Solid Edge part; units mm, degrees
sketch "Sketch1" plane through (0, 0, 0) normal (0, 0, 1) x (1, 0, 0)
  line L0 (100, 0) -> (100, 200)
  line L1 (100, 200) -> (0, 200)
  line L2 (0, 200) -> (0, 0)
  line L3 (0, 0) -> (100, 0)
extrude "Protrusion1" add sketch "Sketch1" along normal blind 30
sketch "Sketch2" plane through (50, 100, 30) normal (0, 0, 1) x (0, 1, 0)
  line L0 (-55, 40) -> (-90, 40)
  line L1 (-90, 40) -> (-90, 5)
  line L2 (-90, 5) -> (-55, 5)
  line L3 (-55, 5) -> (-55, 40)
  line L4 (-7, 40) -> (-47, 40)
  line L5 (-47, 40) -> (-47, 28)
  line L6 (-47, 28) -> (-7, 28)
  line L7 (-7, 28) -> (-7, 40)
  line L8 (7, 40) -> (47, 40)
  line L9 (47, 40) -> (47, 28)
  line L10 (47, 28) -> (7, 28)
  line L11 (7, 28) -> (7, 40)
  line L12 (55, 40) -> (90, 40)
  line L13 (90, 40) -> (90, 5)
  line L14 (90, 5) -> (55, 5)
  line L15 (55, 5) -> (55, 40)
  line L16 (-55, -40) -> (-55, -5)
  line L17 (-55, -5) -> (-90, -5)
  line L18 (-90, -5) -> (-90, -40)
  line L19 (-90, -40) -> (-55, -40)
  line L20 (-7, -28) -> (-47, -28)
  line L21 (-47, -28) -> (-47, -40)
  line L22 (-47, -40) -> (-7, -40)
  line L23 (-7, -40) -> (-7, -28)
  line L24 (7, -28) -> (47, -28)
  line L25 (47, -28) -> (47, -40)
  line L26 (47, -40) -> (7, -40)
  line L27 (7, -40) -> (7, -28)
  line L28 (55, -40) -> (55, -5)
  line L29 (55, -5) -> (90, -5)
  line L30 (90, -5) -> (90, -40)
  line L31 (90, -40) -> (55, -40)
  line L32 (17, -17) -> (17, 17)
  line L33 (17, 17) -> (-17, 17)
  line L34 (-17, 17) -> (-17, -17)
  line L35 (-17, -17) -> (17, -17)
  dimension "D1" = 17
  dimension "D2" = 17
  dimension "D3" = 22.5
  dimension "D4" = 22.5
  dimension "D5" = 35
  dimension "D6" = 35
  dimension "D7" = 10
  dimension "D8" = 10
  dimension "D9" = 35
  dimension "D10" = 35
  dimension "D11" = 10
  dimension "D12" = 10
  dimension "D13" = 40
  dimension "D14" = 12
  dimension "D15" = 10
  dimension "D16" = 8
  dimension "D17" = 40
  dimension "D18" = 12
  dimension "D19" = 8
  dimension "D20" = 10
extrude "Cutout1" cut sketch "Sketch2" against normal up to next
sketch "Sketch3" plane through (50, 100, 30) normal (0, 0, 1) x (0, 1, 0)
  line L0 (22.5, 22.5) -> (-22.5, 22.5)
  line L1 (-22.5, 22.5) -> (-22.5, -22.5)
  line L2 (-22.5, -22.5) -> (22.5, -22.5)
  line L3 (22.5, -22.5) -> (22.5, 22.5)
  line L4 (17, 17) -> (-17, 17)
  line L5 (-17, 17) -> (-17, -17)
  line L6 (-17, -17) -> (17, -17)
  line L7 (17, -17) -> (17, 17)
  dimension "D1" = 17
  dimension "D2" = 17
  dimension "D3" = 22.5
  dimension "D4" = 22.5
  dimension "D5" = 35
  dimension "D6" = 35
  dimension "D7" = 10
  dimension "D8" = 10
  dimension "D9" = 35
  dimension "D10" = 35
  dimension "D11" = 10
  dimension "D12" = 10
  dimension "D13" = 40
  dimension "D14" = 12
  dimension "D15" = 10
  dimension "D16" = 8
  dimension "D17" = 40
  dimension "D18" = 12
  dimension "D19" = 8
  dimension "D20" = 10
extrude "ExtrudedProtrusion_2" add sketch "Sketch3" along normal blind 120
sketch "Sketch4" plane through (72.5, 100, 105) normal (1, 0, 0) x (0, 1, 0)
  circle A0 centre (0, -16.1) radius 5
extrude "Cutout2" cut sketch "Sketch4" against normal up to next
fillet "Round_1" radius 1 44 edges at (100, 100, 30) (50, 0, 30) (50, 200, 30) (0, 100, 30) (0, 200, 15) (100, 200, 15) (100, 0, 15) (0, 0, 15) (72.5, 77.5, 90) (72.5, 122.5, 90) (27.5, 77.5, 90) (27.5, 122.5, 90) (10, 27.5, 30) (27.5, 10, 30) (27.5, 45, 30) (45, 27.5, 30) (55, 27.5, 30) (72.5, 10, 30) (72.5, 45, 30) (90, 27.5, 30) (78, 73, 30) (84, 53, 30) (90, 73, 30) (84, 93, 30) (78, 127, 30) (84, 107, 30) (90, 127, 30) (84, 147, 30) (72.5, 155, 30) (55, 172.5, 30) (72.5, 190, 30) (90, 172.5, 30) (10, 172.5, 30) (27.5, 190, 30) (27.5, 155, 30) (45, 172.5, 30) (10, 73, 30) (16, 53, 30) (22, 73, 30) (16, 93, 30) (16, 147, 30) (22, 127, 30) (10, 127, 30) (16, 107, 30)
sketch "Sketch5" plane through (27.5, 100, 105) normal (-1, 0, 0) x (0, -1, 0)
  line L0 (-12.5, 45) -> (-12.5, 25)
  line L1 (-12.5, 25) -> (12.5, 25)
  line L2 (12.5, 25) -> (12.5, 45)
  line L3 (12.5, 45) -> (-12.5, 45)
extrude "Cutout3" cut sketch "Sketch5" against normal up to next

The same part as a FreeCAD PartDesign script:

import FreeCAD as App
import Part
import Sketcher
Q = App.Units.Quantity


def edges_at(feature, points):
    """Names of the edges that pass closest to the given points."""
    edges = feature.Shape.Edges
    near = lambda p: min(range(len(edges)), key=lambda i: edges[i].distToShape(Part.Vertex(*p))[0])
    return sorted({f"Edge{near(p) + 1}" for p in points})

doc = App.newDocument("Part")
body = doc.addObject("PartDesign::Body", "Body")

# Sketch on XY plane
sketch1 = doc.addObject("Sketcher::SketchObject", "Sketch")
body.addObject(sketch1)
sketch1.AttachmentSupport = (doc.XY_Plane, [""])
sketch1.MapMode = "FlatFace"
sketch1.addGeometry(Part.LineSegment(App.Vector(0, 0, 0), App.Vector(100, 0, 0)), False)
sketch1.addGeometry(Part.LineSegment(App.Vector(100, 0, 0), App.Vector(100, 200, 0)), False)
sketch1.addGeometry(Part.LineSegment(App.Vector(100, 200, 0), App.Vector(0, 200, 0)), False)
sketch1.addGeometry(Part.LineSegment(App.Vector(0, 200, 0), App.Vector(0, 0, 0)), False)
sketch1.addConstraint(Sketcher.Constraint("Coincident", 0, 2, 1, 1))
sketch1.addConstraint(Sketcher.Constraint("Coincident", 1, 2, 2, 1))
sketch1.addConstraint(Sketcher.Constraint("Coincident", 2, 2, 3, 1))
sketch1.addConstraint(Sketcher.Constraint("Coincident", 3, 2, 0, 1))
sketch1.addConstraint(Sketcher.Constraint("Horizontal", 0))
sketch1.addConstraint(Sketcher.Constraint("Vertical", 1))
sketch1.addConstraint(Sketcher.Constraint("Horizontal", 2))
sketch1.addConstraint(Sketcher.Constraint("Vertical", 3))
sketch1.addConstraint(Sketcher.Constraint("Coincident", 3, 2, -1, 1))
sketch1.addConstraint(Sketcher.Constraint("DistanceX", 0, 1, 0, 2, Q("100 mm")))
sketch1.addConstraint(Sketcher.Constraint("DistanceY", 1, 1, 1, 2, Q("200 mm")))
pad1 = doc.addObject("PartDesign::Pad", "Pad")
body.addObject(pad1)
pad1.Profile = sketch1
pad1.Length = 30

# Sketch on XY plane
sketch2 = doc.addObject("Sketcher::SketchObject", "Sketch001")
body.addObject(sketch2)
sketch2.AttachmentSupport = (doc.XY_Plane, [""])
sketch2.MapMode = "FlatFace"
sketch2.AttachmentOffset = App.Placement(App.Vector(0, 0, 30), App.Rotation())
sketch2.addGeometry(Part.LineSegment(App.Vector(45, 45, 0), App.Vector(10, 45, 0)), False)
sketch2.addGeometry(Part.LineSegment(App.Vector(10, 45, 0), App.Vector(10, 10, 0)), False)
sketch2.addGeometry(Part.LineSegment(App.Vector(10, 10, 0), App.Vector(45, 10, 0)), False)
sketch2.addGeometry(Part.LineSegment(App.Vector(45, 10, 0), App.Vector(45, 45, 0)), False)
sketch2.addGeometry(Part.LineSegment(App.Vector(22, 93, 0), App.Vector(10, 93, 0)), False)
sketch2.addGeometry(Part.LineSegment(App.Vector(10, 93, 0), App.Vector(10, 53, 0)), False)
sketch2.addGeometry(Part.LineSegment(App.Vector(10, 53, 0), App.Vector(22, 53, 0)), False)
sketch2.addGeometry(Part.LineSegment(App.Vector(22, 53, 0), App.Vector(22, 93, 0)), False)
sketch2.addGeometry(Part.LineSegment(App.Vector(10, 147, 0), App.Vector(10, 107, 0)), False)
sketch2.addGeometry(Part.LineSegment(App.Vector(10, 107, 0), App.Vector(22, 107, 0)), False)
sketch2.addGeometry(Part.LineSegment(App.Vector(22, 107, 0), App.Vector(22, 147, 0)), False)
sketch2.addGeometry(Part.LineSegment(App.Vector(22, 147, 0), App.Vector(10, 147, 0)), False)
sketch2.addGeometry(Part.LineSegment(App.Vector(10, 190, 0), App.Vector(10, 155, 0)), False)
sketch2.addGeometry(Part.LineSegment(App.Vector(10, 155, 0), App.Vector(45, 155, 0)), False)
sketch2.addGeometry(Part.LineSegment(App.Vector(45, 155, 0), App.Vector(45, 190, 0)), False)
sketch2.addGeometry(Part.LineSegment(App.Vector(45, 190, 0), App.Vector(10, 190, 0)), False)
sketch2.addGeometry(Part.LineSegment(App.Vector(90, 10, 0), App.Vector(90, 45, 0)), False)
sketch2.addGeometry(Part.LineSegment(App.Vector(90, 45, 0), App.Vector(55, 45, 0)), False)
sketch2.addGeometry(Part.LineSegment(App.Vector(55, 45, 0), App.Vector(55, 10, 0)), False)
sketch2.addGeometry(Part.LineSegment(App.Vector(55, 10, 0), App.Vector(90, 10, 0)), False)
sketch2.addGeometry(Part.LineSegment(App.Vector(90, 93, 0), App.Vector(78, 93, 0)), False)
sketch2.addGeometry(Part.LineSegment(App.Vector(78, 93, 0), App.Vector(78, 53, 0)), False)
sketch2.addGeometry(Part.LineSegment(App.Vector(78, 53, 0), App.Vector(90, 53, 0)), False)
sketch2.addGeometry(Part.LineSegment(App.Vector(90, 53, 0), App.Vector(90, 93, 0)), False)
sketch2.addGeometry(Part.LineSegment(App.Vector(78, 147, 0), App.Vector(78, 107, 0)), False)
sketch2.addGeometry(Part.LineSegment(App.Vector(78, 107, 0), App.Vector(90, 107, 0)), False)
sketch2.addGeometry(Part.LineSegment(App.Vector(90, 107, 0), App.Vector(90, 147, 0)), False)
sketch2.addGeometry(Part.LineSegment(App.Vector(90, 147, 0), App.Vector(78, 147, 0)), False)
sketch2.addGeometry(Part.LineSegment(App.Vector(55, 155, 0), App.Vector(90, 155, 0)), False)
sketch2.addGeometry(Part.LineSegment(App.Vector(90, 155, 0), App.Vector(90, 190, 0)), False)
sketch2.addGeometry(Part.LineSegment(App.Vector(90, 190, 0), App.Vector(55, 190, 0)), False)
sketch2.addGeometry(Part.LineSegment(App.Vector(55, 190, 0), App.Vector(55, 155, 0)), False)
sketch2.addGeometry(Part.LineSegment(App.Vector(67, 83, 0), App.Vector(67, 117, 0)), False)
sketch2.addGeometry(Part.LineSegment(App.Vector(67, 117, 0), App.Vector(33, 117, 0)), False)
sketch2.addGeometry(Part.LineSegment(App.Vector(33, 117, 0), App.Vector(33, 83, 0)), False)
sketch2.addGeometry(Part.LineSegment(App.Vector(33, 83, 0), App.Vector(67, 83, 0)), False)
sketch2.addConstraint(Sketcher.Constraint("Coincident", 0, 2, 1, 1))
sketch2.addConstraint(Sketcher.Constraint("Coincident", 1, 2, 2, 1))
sketch2.addConstraint(Sketcher.Constraint("Coincident", 2, 2, 3, 1))
sketch2.addConstraint(Sketcher.Constraint("Coincident", 3, 2, 0, 1))
sketch2.addConstraint(Sketcher.Constraint("Coincident", 4, 2, 5, 1))
sketch2.addConstraint(Sketcher.Constraint("Coincident", 5, 2, 6, 1))
sketch2.addConstraint(Sketcher.Constraint("Coincident", 6, 2, 7, 1))
sketch2.addConstraint(Sketcher.Constraint("Coincident", 7, 2, 4, 1))
sketch2.addConstraint(Sketcher.Constraint("Coincident", 8, 2, 9, 1))
sketch2.addConstraint(Sketcher.Constraint("Coincident", 9, 2, 10, 1))
sketch2.addConstraint(Sketcher.Constraint("Coincident", 10, 2, 11, 1))
sketch2.addConstraint(Sketcher.Constraint("Coincident", 11, 2, 8, 1))
sketch2.addConstraint(Sketcher.Constraint("Coincident", 12, 2, 13, 1))
sketch2.addConstraint(Sketcher.Constraint("Coincident", 13, 2, 14, 1))
sketch2.addConstraint(Sketcher.Constraint("Coincident", 14, 2, 15, 1))
sketch2.addConstraint(Sketcher.Constraint("Coincident", 15, 2, 12, 1))
sketch2.addConstraint(Sketcher.Constraint("Coincident", 16, 2, 17, 1))
sketch2.addConstraint(Sketcher.Constraint("Coincident", 17, 2, 18, 1))
sketch2.addConstraint(Sketcher.Constraint("Coincident", 18, 2, 19, 1))
sketch2.addConstraint(Sketcher.Constraint("Coincident", 19, 2, 16, 1))
sketch2.addConstraint(Sketcher.Constraint("Coincident", 20, 2, 21, 1))
sketch2.addConstraint(Sketcher.Constraint("Coincident", 21, 2, 22, 1))
sketch2.addConstraint(Sketcher.Constraint("Coincident", 22, 2, 23, 1))
sketch2.addConstraint(Sketcher.Constraint("Coincident", 23, 2, 20, 1))
sketch2.addConstraint(Sketcher.Constraint("Coincident", 24, 2, 25, 1))
sketch2.addConstraint(Sketcher.Constraint("Coincident", 25, 2, 26, 1))
sketch2.addConstraint(Sketcher.Constraint("Coincident", 26, 2, 27, 1))
sketch2.addConstraint(Sketcher.Constraint("Coincident", 27, 2, 24, 1))
sketch2.addConstraint(Sketcher.Constraint("Coincident", 28, 2, 29, 1))
sketch2.addConstraint(Sketcher.Constraint("Coincident", 29, 2, 30, 1))
sketch2.addConstraint(Sketcher.Constraint("Coincident", 30, 2, 31, 1))
sketch2.addConstraint(Sketcher.Constraint("Coincident", 31, 2, 28, 1))
sketch2.addConstraint(Sketcher.Constraint("Coincident", 32, 2, 33, 1))
sketch2.addConstraint(Sketcher.Constraint("Coincident", 33, 2, 34, 1))
sketch2.addConstraint(Sketcher.Constraint("Coincident", 34, 2, 35, 1))
sketch2.addConstraint(Sketcher.Constraint("Coincident", 35, 2, 32, 1))
sketch2.addConstraint(Sketcher.Constraint("Horizontal", 0))
sketch2.addConstraint(Sketcher.Constraint("Vertical", 1))
sketch2.addConstraint(Sketcher.Constraint("Horizontal", 2))
sketch2.addConstraint(Sketcher.Constraint("Vertical", 3))
sketch2.addConstraint(Sketcher.Constraint("Horizontal", 4))
sketch2.addConstraint(Sketcher.Constraint("Vertical", 5))
sketch2.addConstraint(Sketcher.Constraint("Horizontal", 6))
sketch2.addConstraint(Sketcher.Constraint("Vertical", 7))
sketch2.addConstraint(Sketcher.Constraint("Vertical", 8))
sketch2.addConstraint(Sketcher.Constraint("Horizontal", 9))
sketch2.addConstraint(Sketcher.Constraint("Vertical", 10))
sketch2.addConstraint(Sketcher.Constraint("Horizontal", 11))
sketch2.addConstraint(Sketcher.Constraint("Vertical", 12))
sketch2.addConstraint(Sketcher.Constraint("Horizontal", 13))
sketch2.addConstraint(Sketcher.Constraint("Vertical", 14))
sketch2.addConstraint(Sketcher.Constraint("Horizontal", 15))
sketch2.addConstraint(Sketcher.Constraint("Vertical", 16))
sketch2.addConstraint(Sketcher.Constraint("Horizontal", 17))
sketch2.addConstraint(Sketcher.Constraint("Vertical", 18))
sketch2.addConstraint(Sketcher.Constraint("Horizontal", 19))
sketch2.addConstraint(Sketcher.Constraint("Horizontal", 20))
sketch2.addConstraint(Sketcher.Constraint("Vertical", 21))
sketch2.addConstraint(Sketcher.Constraint("Horizontal", 22))
sketch2.addConstraint(Sketcher.Constraint("Vertical", 23))
sketch2.addConstraint(Sketcher.Constraint("Vertical", 24))
sketch2.addConstraint(Sketcher.Constraint("Horizontal", 25))
sketch2.addConstraint(Sketcher.Constraint("Vertical", 26))
sketch2.addConstraint(Sketcher.Constraint("Horizontal", 27))
sketch2.addConstraint(Sketcher.Constraint("Horizontal", 28))
sketch2.addConstraint(Sketcher.Constraint("Vertical", 29))
sketch2.addConstraint(Sketcher.Constraint("Horizontal", 30))
sketch2.addConstraint(Sketcher.Constraint("Vertical", 31))
sketch2.addConstraint(Sketcher.Constraint("Vertical", 32))
sketch2.addConstraint(Sketcher.Constraint("Horizontal", 33))
sketch2.addConstraint(Sketcher.Constraint("Vertical", 34))
sketch2.addConstraint(Sketcher.Constraint("Horizontal", 35))
sketch2.addConstraint(Sketcher.Constraint("Horizontal", 3, 2, 16, 2))
sketch2.addConstraint(Sketcher.Constraint("Horizontal", 2, 2, 18, 2))
sketch2.addConstraint(Sketcher.Constraint("Horizontal", 7, 2, 20, 2))
sketch2.addConstraint(Sketcher.Constraint("Horizontal", 6, 2, 21, 2))
sketch2.addConstraint(Sketcher.Constraint("Horizontal", 9, 2, 24, 2))
sketch2.addConstraint(Sketcher.Constraint("Horizontal", 11, 2, 26, 2))
sketch2.addConstraint(Sketcher.Constraint("Horizontal", 13, 2, 28, 2))
sketch2.addConstraint(Sketcher.Constraint("Horizontal", 15, 2, 29, 2))
sketch2.addConstraint(Sketcher.Constraint("Vertical", 1, 2, 4, 2))
sketch2.addConstraint(Sketcher.Constraint("Vertical", 5, 2, 8, 2))
sketch2.addConstraint(Sketcher.Constraint("Vertical", 7, 2, 9, 2))
sketch2.addConstraint(Sketcher.Constraint("Vertical", 11, 2, 12, 2))
sketch2.addConstraint(Sketcher.Constraint("Vertical", 3, 2, 13, 2))
sketch2.addConstraint(Sketcher.Constraint("Vertical", 19, 2, 22, 2))
sketch2.addConstraint(Sketcher.Constraint("Vertical", 21, 2, 24, 2))
sketch2.addConstraint(Sketcher.Constraint("Vertical", 23, 2, 25, 2))
sketch2.addConstraint(Sketcher.Constraint("Vertical", 26, 2, 28, 2))
sketch2.addConstraint(Sketcher.Constraint("Vertical", 18, 2, 30, 2))
sketch2.addConstraint(Sketcher.Constraint("Equal", 15, 17))
sketch2.addConstraint(Sketcher.Constraint("Equal", 11, 20))
sketch2.addConstraint(Sketcher.Constraint("Equal", 30, 1))
sketch2.addConstraint(Sketcher.Constraint("Equal", 7, 8))
sketch2.addConstraint(Sketcher.Constraint("Equal", 3, 12))
sketch2.addConstraint(Sketcher.Constraint("Equal", 35, 32))
sketch2.addConstraint(Sketcher.Constraint("DistanceX", 0, 2, 0, 1, Q("35 mm")))
sketch2.addConstraint(Sketcher.Constraint("DistanceX", 4, 2, 4, 1, Q("12 mm")))
sketch2.addConstraint(Sketcher.Constraint("DistanceX", 33, 2, 33, 1, Q("34 mm")))
sketch2.addConstraint(Sketcher.Constraint("DistanceY", 5, 2, 5, 1, Q("40 mm")))
sketch2.addConstraint(Sketcher.Constraint("DistanceX", -1, 1, 0, 2, Q("10 mm")))
sketch2.addConstraint(Sketcher.Constraint("DistanceY", -1, 1, 0, 2, Q("45 mm")))
sketch2.addConstraint(Sketcher.Constraint("DistanceY", -1, 1, 4, 2, Q("93 mm")))
sketch2.addConstraint(Sketcher.Constraint("DistanceY", -1, 1, 8, 2, Q("107 mm")))
sketch2.addConstraint(Sketcher.Constraint("DistanceY", -1, 1, 12, 2, Q("155 mm")))
sketch2.addConstraint(Sketcher.Constraint("DistanceX", -1, 1, 16, 2, Q("90 mm")))
sketch2.addConstraint(Sketcher.Constraint("DistanceX", -1, 1, 32, 2, Q("67 mm")))
sketch2.addConstraint(Sketcher.Constraint("DistanceY", -1, 1, 32, 2, Q("117 mm")))
pocket1 = doc.addObject("PartDesign::Pocket", "Pocket")
body.addObject(pocket1)
pocket1.Profile = sketch2
pocket1.Type = "UpToFirst"

# Sketch on XY plane
sketch3 = doc.addObject("Sketcher::SketchObject", "Sketch002")
body.addObject(sketch3)
sketch3.AttachmentSupport = (doc.XY_Plane, [""])
sketch3.MapMode = "FlatFace"
sketch3.AttachmentOffset = App.Placement(App.Vector(0, 0, 30), App.Rotation())
sketch3.addGeometry(Part.LineSegment(App.Vector(72, 122, 0), App.Vector(28, 122, 0)), False)
sketch3.addGeometry(Part.LineSegment(App.Vector(28, 122, 0), App.Vector(28, 78, 0)), False)
sketch3.addGeometry(Part.LineSegment(App.Vector(28, 78, 0), App.Vector(72, 78, 0)), False)
sketch3.addGeometry(Part.LineSegment(App.Vector(72, 78, 0), App.Vector(72, 122, 0)), False)
sketch3.addGeometry(Part.LineSegment(App.Vector(33, 83, 0), App.Vector(33, 117, 0)), False)
sketch3.addGeometry(Part.LineSegment(App.Vector(33, 117, 0), App.Vector(67, 117, 0)), False)
sketch3.addGeometry(Part.LineSegment(App.Vector(67, 117, 0), App.Vector(67, 83, 0)), False)
sketch3.addGeometry(Part.LineSegment(App.Vector(67, 83, 0), App.Vector(33, 83, 0)), False)
sketch3.addConstraint(Sketcher.Constraint("Coincident", 0, 2, 1, 1))
sketch3.addConstraint(Sketcher.Constraint("Coincident", 1, 2, 2, 1))
sketch3.addConstraint(Sketcher.Constraint("Coincident", 2, 2, 3, 1))
sketch3.addConstraint(Sketcher.Constraint("Coincident", 3, 2, 0, 1))
sketch3.addConstraint(Sketcher.Constraint("Coincident", 4, 2, 5, 1))
sketch3.addConstraint(Sketcher.Constraint("Coincident", 5, 2, 6, 1))
sketch3.addConstraint(Sketcher.Constraint("Coincident", 6, 2, 7, 1))
sketch3.addConstraint(Sketcher.Constraint("Coincident", 7, 2, 4, 1))
sketch3.addConstraint(Sketcher.Constraint("Horizontal", 0))
sketch3.addConstraint(Sketcher.Constraint("Vertical", 1))
sketch3.addConstraint(Sketcher.Constraint("Horizontal", 2))
sketch3.addConstraint(Sketcher.Constraint("Vertical", 3))
sketch3.addConstraint(Sketcher.Constraint("Vertical", 4))
sketch3.addConstraint(Sketcher.Constraint("Horizontal", 5))
sketch3.addConstraint(Sketcher.Constraint("Vertical", 6))
sketch3.addConstraint(Sketcher.Constraint("Horizontal", 7))
sketch3.addConstraint(Sketcher.Constraint("Equal", 2, 1))
sketch3.addConstraint(Sketcher.Constraint("Equal", 7, 4))
sketch3.addConstraint(Sketcher.Constraint("DistanceX", 0, 2, 0, 1, Q("45 mm")))
sketch3.addConstraint(Sketcher.Constraint("DistanceX", 5, 1, 5, 2, Q("34 mm")))
sketch3.addConstraint(Sketcher.Constraint("DistanceX", -1, 1, 4, 2, Q("33 mm")))
sketch3.addConstraint(Sketcher.Constraint("DistanceY", -1, 1, 4, 2, Q("117 mm")))
sketch3.addConstraint(Sketcher.Constraint("DistanceX", -1, 1, 0, 2, Q("27.5 mm")))
sketch3.addConstraint(Sketcher.Constraint("DistanceY", -1, 1, 0, 2, Q("122.5 mm")))
pad2 = doc.addObject("PartDesign::Pad", "Pad001")
body.addObject(pad2)
pad2.Profile = sketch3
pad2.Length = 120

# Sketch on YZ plane
sketch4 = doc.addObject("Sketcher::SketchObject", "Sketch003")
body.addObject(sketch4)
sketch4.AttachmentSupport = (doc.YZ_Plane, [""])
sketch4.MapMode = "FlatFace"
sketch4.AttachmentOffset = App.Placement(App.Vector(0, 0, 72.5), App.Rotation())
sketch4.addGeometry(Part.Circle(App.Vector(100, 89, 0), App.Vector(0, 0, 1), 5), False)
sketch4.addConstraint(Sketcher.Constraint("Diameter", 0, Q("10 mm")))
sketch4.addConstraint(Sketcher.Constraint("DistanceX", -1, 1, 0, 3, Q("100 mm")))
sketch4.addConstraint(Sketcher.Constraint("DistanceY", -1, 1, 0, 3, Q("88.9 mm")))
pocket2 = doc.addObject("PartDesign::Pocket", "Pocket001")
body.addObject(pocket2)
pocket2.Profile = sketch4
pocket2.Type = "UpToFirst"
doc.recompute()

fillet = doc.addObject("PartDesign::Fillet", "Fillet")
body.addObject(fillet)
fillet.Base = (pocket2, edges_at(pocket2, [
    (100, 100, 30),
    (50, 0, 30),
    (50, 200, 30),
    (0, 100, 30),
    (0, 200, 15),
    (100, 200, 15),
    (100, 0, 15),
    (0, 0, 15),
    (72.5, 77.5, 90),
    (72.5, 122.5, 90),
    (27.5, 77.5, 90),
    (27.5, 122.5, 90),
    (10, 27.5, 30),
    (27.5, 10, 30),
    (27.5, 45, 30),
    (45, 27.5, 30),
    (55, 27.5, 30),
    (72.5, 10, 30),
    (72.5, 45, 30),
    (90, 27.5, 30),
    (78, 73, 30),
    (84, 53, 30),
    (90, 73, 30),
    (84, 93, 30),
    (78, 127, 30),
    (84, 107, 30),
    (90, 127, 30),
    (84, 147, 30),
    (72.5, 155, 30),
    (55, 172.5, 30),
    (72.5, 190, 30),
    (90, 172.5, 30),
    (10, 172.5, 30),
    (27.5, 190, 30),
    (27.5, 155, 30),
    (45, 172.5, 30),
    (10, 73, 30),
    (16, 53, 30),
    (22, 73, 30),
    (16, 93, 30),
    (16, 147, 30),
    (22, 127, 30),
    (10, 127, 30),
    (16, 107, 30),
]))
fillet.Radius = 1

# Sketch on YZ plane
sketch5 = doc.addObject("Sketcher::SketchObject", "Sketch004")
body.addObject(sketch5)
sketch5.AttachmentSupport = (doc.YZ_Plane, [""])
sketch5.MapMode = "FlatFace"
sketch5.AttachmentOffset = App.Placement(App.Vector(0, 0, 27.5), App.Rotation())
sketch5.addGeometry(Part.LineSegment(App.Vector(88, 150, 0), App.Vector(112, 150, 0)), False)
sketch5.addGeometry(Part.LineSegment(App.Vector(112, 150, 0), App.Vector(112, 130, 0)), False)
sketch5.addGeometry(Part.LineSegment(App.Vector(112, 130, 0), App.Vector(88, 130, 0)), False)
sketch5.addGeometry(Part.LineSegment(App.Vector(88, 130, 0), App.Vector(88, 150, 0)), False)
sketch5.addConstraint(Sketcher.Constraint("Coincident", 0, 2, 1, 1))
sketch5.addConstraint(Sketcher.Constraint("Coincident", 1, 2, 2, 1))
sketch5.addConstraint(Sketcher.Constraint("Coincident", 2, 2, 3, 1))
sketch5.addConstraint(Sketcher.Constraint("Coincident", 3, 2, 0, 1))
sketch5.addConstraint(Sketcher.Constraint("Horizontal", 0))
sketch5.addConstraint(Sketcher.Constraint("Vertical", 1))
sketch5.addConstraint(Sketcher.Constraint("Horizontal", 2))
sketch5.addConstraint(Sketcher.Constraint("Vertical", 3))
sketch5.addConstraint(Sketcher.Constraint("DistanceX", 0, 1, 0, 2, Q("25 mm")))
sketch5.addConstraint(Sketcher.Constraint("DistanceY", 1, 2, 1, 1, Q("20 mm")))
sketch5.addConstraint(Sketcher.Constraint("DistanceY", -1, 1, 0, 2, Q("150 mm")))
sketch5.addConstraint(Sketcher.Constraint("DistanceX", -1, 1, 0, 2, Q("112.5 mm")))
pocket3 = doc.addObject("PartDesign::Pocket", "Pocket002")
body.addObject(pocket3)
pocket3.Profile = sketch5
pocket3.Type = "UpToFirst"
pocket3.Reversed = True

doc.recompute()
